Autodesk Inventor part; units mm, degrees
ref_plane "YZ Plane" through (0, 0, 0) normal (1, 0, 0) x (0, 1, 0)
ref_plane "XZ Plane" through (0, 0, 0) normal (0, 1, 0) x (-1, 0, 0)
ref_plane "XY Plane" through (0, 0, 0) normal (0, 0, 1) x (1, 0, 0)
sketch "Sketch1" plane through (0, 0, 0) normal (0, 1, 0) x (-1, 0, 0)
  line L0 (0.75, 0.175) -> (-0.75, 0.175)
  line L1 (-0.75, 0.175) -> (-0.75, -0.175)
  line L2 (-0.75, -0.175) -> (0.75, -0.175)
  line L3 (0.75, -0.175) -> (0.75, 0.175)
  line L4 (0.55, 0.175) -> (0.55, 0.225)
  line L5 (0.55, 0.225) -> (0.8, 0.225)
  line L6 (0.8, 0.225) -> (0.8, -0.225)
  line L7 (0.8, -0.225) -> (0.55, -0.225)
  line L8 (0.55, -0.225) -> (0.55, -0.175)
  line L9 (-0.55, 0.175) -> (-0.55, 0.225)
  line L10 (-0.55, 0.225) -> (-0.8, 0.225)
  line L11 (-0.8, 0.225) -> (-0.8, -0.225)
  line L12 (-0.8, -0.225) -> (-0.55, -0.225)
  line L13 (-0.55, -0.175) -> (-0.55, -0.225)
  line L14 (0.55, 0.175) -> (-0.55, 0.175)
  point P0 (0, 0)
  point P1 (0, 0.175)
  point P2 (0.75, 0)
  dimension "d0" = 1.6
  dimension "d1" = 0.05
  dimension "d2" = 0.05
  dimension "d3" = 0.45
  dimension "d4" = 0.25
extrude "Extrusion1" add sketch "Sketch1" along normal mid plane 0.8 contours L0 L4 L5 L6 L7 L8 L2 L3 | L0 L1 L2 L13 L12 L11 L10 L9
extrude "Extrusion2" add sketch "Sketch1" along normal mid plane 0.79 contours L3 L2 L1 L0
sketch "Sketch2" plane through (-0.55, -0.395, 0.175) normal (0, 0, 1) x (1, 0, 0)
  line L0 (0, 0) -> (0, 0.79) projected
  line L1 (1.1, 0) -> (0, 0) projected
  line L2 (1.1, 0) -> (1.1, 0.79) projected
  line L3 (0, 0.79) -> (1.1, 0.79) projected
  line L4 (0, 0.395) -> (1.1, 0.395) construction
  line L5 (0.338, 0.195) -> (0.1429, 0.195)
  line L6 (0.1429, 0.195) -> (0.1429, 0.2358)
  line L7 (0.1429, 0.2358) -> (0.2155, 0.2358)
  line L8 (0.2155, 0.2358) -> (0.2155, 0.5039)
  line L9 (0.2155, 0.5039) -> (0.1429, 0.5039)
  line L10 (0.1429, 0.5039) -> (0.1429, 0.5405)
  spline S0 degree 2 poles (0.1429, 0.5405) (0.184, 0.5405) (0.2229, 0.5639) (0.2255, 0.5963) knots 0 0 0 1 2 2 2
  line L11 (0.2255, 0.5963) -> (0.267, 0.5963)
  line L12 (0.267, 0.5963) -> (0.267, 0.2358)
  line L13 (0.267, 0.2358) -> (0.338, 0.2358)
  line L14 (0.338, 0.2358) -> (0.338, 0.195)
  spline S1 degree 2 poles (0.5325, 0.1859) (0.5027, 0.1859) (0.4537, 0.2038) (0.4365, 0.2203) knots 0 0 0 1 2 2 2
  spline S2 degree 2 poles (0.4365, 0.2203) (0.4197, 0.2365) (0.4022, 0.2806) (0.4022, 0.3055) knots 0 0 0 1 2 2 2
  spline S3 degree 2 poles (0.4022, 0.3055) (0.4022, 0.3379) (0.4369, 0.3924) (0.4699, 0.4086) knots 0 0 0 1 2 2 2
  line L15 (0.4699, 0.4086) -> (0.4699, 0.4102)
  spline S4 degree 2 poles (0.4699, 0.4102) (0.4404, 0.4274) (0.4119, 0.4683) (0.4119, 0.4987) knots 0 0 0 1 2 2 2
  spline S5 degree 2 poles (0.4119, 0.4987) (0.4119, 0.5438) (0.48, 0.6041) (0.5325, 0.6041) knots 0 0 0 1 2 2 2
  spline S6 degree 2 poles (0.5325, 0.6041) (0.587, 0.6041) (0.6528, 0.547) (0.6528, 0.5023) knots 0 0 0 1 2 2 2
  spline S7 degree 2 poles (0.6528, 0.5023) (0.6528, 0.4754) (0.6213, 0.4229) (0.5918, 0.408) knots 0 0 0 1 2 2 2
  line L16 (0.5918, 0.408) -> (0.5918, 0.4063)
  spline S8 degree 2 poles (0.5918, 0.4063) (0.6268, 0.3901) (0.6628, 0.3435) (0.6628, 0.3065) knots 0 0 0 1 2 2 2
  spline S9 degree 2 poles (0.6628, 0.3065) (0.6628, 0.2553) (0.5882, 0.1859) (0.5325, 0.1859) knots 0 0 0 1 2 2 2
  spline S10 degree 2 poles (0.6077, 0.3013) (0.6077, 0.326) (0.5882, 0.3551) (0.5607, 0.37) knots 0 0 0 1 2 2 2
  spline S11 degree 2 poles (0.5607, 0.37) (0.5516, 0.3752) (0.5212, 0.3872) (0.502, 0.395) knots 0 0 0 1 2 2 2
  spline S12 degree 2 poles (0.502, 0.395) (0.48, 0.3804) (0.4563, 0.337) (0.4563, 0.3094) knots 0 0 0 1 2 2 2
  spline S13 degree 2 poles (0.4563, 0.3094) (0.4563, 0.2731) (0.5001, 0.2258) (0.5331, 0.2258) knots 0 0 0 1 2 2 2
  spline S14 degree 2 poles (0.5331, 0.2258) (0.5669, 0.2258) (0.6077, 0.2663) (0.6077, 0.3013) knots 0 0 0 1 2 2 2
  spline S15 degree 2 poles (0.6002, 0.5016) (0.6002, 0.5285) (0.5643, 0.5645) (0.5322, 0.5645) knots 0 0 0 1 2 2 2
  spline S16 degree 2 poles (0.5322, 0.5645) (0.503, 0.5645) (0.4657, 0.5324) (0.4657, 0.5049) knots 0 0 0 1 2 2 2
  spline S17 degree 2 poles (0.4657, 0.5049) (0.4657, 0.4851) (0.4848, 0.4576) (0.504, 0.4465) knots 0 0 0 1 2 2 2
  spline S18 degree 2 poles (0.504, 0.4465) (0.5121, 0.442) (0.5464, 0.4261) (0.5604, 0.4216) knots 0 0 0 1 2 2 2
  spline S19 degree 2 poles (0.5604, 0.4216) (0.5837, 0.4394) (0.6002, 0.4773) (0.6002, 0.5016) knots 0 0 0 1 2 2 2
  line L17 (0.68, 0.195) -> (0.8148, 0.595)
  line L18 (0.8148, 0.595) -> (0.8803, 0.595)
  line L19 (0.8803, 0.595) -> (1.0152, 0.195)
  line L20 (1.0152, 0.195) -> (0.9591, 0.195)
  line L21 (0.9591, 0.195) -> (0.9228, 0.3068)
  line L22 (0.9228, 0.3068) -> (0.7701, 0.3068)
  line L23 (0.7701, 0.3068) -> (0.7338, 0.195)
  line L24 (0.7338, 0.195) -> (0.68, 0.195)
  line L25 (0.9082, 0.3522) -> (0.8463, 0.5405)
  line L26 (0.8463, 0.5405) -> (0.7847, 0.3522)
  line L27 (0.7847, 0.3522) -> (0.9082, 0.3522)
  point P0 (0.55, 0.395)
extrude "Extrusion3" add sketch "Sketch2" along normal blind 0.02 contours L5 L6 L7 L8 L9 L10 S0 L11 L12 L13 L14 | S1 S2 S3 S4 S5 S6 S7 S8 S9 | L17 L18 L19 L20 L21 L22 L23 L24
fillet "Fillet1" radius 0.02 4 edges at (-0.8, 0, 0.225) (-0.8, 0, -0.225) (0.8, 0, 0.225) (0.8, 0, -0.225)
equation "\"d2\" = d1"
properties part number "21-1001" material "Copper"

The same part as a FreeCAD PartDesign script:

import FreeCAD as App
import Part
import Sketcher
from FreeCAD import Vector
Q = App.Units.Quantity


def edges_at(feature, points):
    """Names of the edges that pass closest to the given points."""
    edges = feature.Shape.Edges
    near = lambda p: min(range(len(edges)), key=lambda i: edges[i].distToShape(Part.Vertex(*p))[0])
    return sorted({f"Edge{near(p) + 1}" for p in points})

doc = App.newDocument("Part")
body = doc.addObject("PartDesign::Body", "Body")
body.AllowCompound = True

sketch1 = doc.addObject("Sketcher::SketchObject", "Sketch")
body.addObject(sketch1)
sketch1.AttachmentSupport = (doc.XZ_Plane, [""])
sketch1.MapMode = "FlatFace"
sketch1.addGeometry([
    Part.LineSegment(Vector(-0.55, 0.17, 0), Vector(-0.75, 0.17, 0)),
    Part.LineSegment(Vector(-0.75, 0.17, 0), Vector(-0.75, -0.17, 0)),
    Part.LineSegment(Vector(-0.75, -0.17, 0), Vector(-0.55, -0.17, 0)),
    Part.LineSegment(Vector(-0.55, -0.17, 0), Vector(-0.55, -0.23, 0)),
    Part.LineSegment(Vector(-0.55, -0.23, 0), Vector(-0.8, -0.23, 0)),
    Part.LineSegment(Vector(-0.8, -0.23, 0), Vector(-0.8, 0.23, 0)),
    Part.LineSegment(Vector(-0.8, 0.23, 0), Vector(-0.55, 0.23, 0)),
    Part.LineSegment(Vector(-0.55, 0.23, 0), Vector(-0.55, 0.17, 0)),
    Part.LineSegment(Vector(0.75, 0.17, 0), Vector(0.55, 0.17, 0)),
    Part.LineSegment(Vector(0.55, 0.17, 0), Vector(0.55, 0.23, 0)),
    Part.LineSegment(Vector(0.55, 0.23, 0), Vector(0.8, 0.23, 0)),
    Part.LineSegment(Vector(0.8, 0.23, 0), Vector(0.8, -0.23, 0)),
    Part.LineSegment(Vector(0.8, -0.23, 0), Vector(0.55, -0.23, 0)),
    Part.LineSegment(Vector(0.55, -0.23, 0), Vector(0.55, -0.17, 0)),
    Part.LineSegment(Vector(0.55, -0.17, 0), Vector(0.75, -0.17, 0)),
    Part.LineSegment(Vector(0.75, -0.17, 0), Vector(0.75, 0.17, 0)),
], False)
sketch1.addConstraint([
    Sketcher.Constraint("Coincident", 0, 2, 1, 1),
    Sketcher.Constraint("Coincident", 1, 2, 2, 1),
    Sketcher.Constraint("Coincident", 2, 2, 3, 1),
    Sketcher.Constraint("Coincident", 3, 2, 4, 1),
    Sketcher.Constraint("Coincident", 4, 2, 5, 1),
    Sketcher.Constraint("Coincident", 5, 2, 6, 1),
    Sketcher.Constraint("Coincident", 6, 2, 7, 1),
    Sketcher.Constraint("Coincident", 7, 2, 0, 1),
    Sketcher.Constraint("Coincident", 8, 2, 9, 1),
    Sketcher.Constraint("Coincident", 9, 2, 10, 1),
    Sketcher.Constraint("Coincident", 10, 2, 11, 1),
    Sketcher.Constraint("Coincident", 11, 2, 12, 1),
    Sketcher.Constraint("Coincident", 12, 2, 13, 1),
    Sketcher.Constraint("Coincident", 13, 2, 14, 1),
    Sketcher.Constraint("Coincident", 14, 2, 15, 1),
    Sketcher.Constraint("Coincident", 15, 2, 8, 1),
    Sketcher.Constraint("Horizontal", 0),
    Sketcher.Constraint("Vertical", 1),
    Sketcher.Constraint("Horizontal", 2),
    Sketcher.Constraint("Vertical", 3),
    Sketcher.Constraint("Horizontal", 4),
    Sketcher.Constraint("Vertical", 5),
    Sketcher.Constraint("Horizontal", 6),
    Sketcher.Constraint("Vertical", 7),
    Sketcher.Constraint("Horizontal", 8),
    Sketcher.Constraint("Vertical", 9),
    Sketcher.Constraint("Horizontal", 10),
    Sketcher.Constraint("Vertical", 11),
    Sketcher.Constraint("Horizontal", 12),
    Sketcher.Constraint("Vertical", 13),
    Sketcher.Constraint("Horizontal", 14),
    Sketcher.Constraint("Vertical", 15),
    Sketcher.Constraint("Symmetric", 2, 2, 8, 2, -1, 1),
    Sketcher.Constraint("Symmetric", 4, 2, 10, 2, -1, 1),
    Sketcher.Constraint("Symmetric", 6, 2, 12, 2, -1, 1),
    Sketcher.Constraint("Symmetric", 0, 2, 14, 2, -1, 1),
    Sketcher.Constraint("Symmetric", 7, 2, 8, 2, -2),
    Sketcher.Constraint("Horizontal", 6, 2, 9, 2),
    Sketcher.Constraint("DistanceX", 4, 2, 4, 1, Q("0.25 mm")),
    Sketcher.Constraint("DistanceY", 3, 2, 3, 1, Q("0.05 mm")),
    Sketcher.Constraint("DistanceY", 5, 1, 5, 2, Q("0.45 mm")),
    Sketcher.Constraint("DistanceX", 4, 2, 1, 2, Q("0.05 mm")),
    Sketcher.Constraint("DistanceX", 4, 2, -1, 1, Q("0.8 mm")),
])
pad1 = doc.addObject("PartDesign::Pad", "Pad")
body.addObject(pad1)
pad1.Profile = sketch1
pad1.Length = 0.8
pad1.Midplane = True

sketch2 = doc.addObject("Sketcher::SketchObject", "Sketch001")
body.addObject(sketch2)
sketch2.AttachmentSupport = (doc.XZ_Plane, [""])
sketch2.MapMode = "FlatFace"
sketch2.addGeometry([
    Part.LineSegment(Vector(-0.75, -0.17, 0), Vector(-0.75, 0.17, 0)),
    Part.LineSegment(Vector(-0.75, 0.17, 0), Vector(0.75, 0.17, 0)),
    Part.LineSegment(Vector(0.75, 0.17, 0), Vector(0.75, -0.17, 0)),
    Part.LineSegment(Vector(0.75, -0.17, 0), Vector(-0.75, -0.17, 0)),
], False)
sketch2.addConstraint([
    Sketcher.Constraint("Coincident", 0, 2, 1, 1),
    Sketcher.Constraint("Coincident", 1, 2, 2, 1),
    Sketcher.Constraint("Coincident", 2, 2, 3, 1),
    Sketcher.Constraint("Coincident", 3, 2, 0, 1),
    Sketcher.Constraint("Vertical", 0),
    Sketcher.Constraint("Horizontal", 1),
    Sketcher.Constraint("Vertical", 2),
    Sketcher.Constraint("Horizontal", 3),
    Sketcher.Constraint("Symmetric", 0, 2, 2, 2, -1, 1),
    Sketcher.Constraint("DistanceX", 1, 1, 1, 2, Q("1.5 mm")),
    Sketcher.Constraint("DistanceY", 0, 1, 0, 2, Q("0.35 mm")),
])
pad2 = doc.addObject("PartDesign::Pad", "Pad001")
body.addObject(pad2)
pad2.Profile = sketch2
pad2.Length = 0.79
pad2.Midplane = True

sketch3 = doc.addObject("Sketcher::SketchObject", "Sketch002")
body.addObject(sketch3)
sketch3.AttachmentSupport = (doc.XY_Plane, [""])
sketch3.MapMode = "FlatFace"
sketch3.AttachmentOffset = App.Placement(Vector(0, 0, 0.175), App.Rotation())
sketch3.addGeometry([
    Part.LineSegment(Vector(-0.4071, -0.2, 0), Vector(-0.212, -0.2, 0)),
    Part.LineSegment(Vector(-0.212, -0.2, 0), Vector(-0.212, -0.1592, 0)),
    Part.LineSegment(Vector(-0.212, -0.1592, 0), Vector(-0.283, -0.1592, 0)),
    Part.LineSegment(Vector(-0.283, -0.1592, 0), Vector(-0.283, 0.2013, 0)),
    Part.LineSegment(Vector(-0.283, 0.2013, 0), Vector(-0.3245, 0.2013, 0)),
    Part.BSplineCurve([Vector(-0.4071, 0.1455, 0), Vector(-0.366, 0.1455, 0), Vector(-0.3271, 0.1689, 0), Vector(-0.3245, 0.2013, 0)], [3, 1, 3], [0, 1, 2], False, 2, [1, 1, 1, 1], False),
    Part.LineSegment(Vector(-0.4071, 0.1455, 0), Vector(-0.4071, 0.1089, 0)),
    Part.LineSegment(Vector(-0.4071, 0.1089, 0), Vector(-0.3345, 0.1089, 0)),
    Part.LineSegment(Vector(-0.3345, 0.1089, 0), Vector(-0.3345, -0.1592, 0)),
    Part.LineSegment(Vector(-0.3345, -0.1592, 0), Vector(-0.4071, -0.1592, 0)),
    Part.LineSegment(Vector(-0.4071, -0.1592, 0), Vector(-0.4071, -0.2, 0)),
    Part.BSplineCurve([Vector(-0.0175, -0.2091, 0), Vector(-0.0473, -0.2091, 0), Vector(-0.0963, -0.1912, 0), Vector(-0.1135, -0.1747, 0)], [3, 1, 3], [0, 1, 2], False, 2, [1, 1, 1, 1], False),
    Part.BSplineCurve([Vector(0.1128, -0.0885, 0), Vector(0.1128, -0.1397, 0), Vector(0.0382, -0.2091, 0), Vector(-0.0175, -0.2091, 0)], [3, 1, 3], [0, 1, 2], False, 2, [1, 1, 1, 1], False),
    Part.BSplineCurve([Vector(0.0418, 0.013, 0), Vector(0.0768, -0.0049, 0), Vector(0.1128, -0.0515, 0), Vector(0.1128, -0.0885, 0)], [3, 1, 3], [0, 1, 2], False, 2, [1, 1, 1, 1], False),
    Part.BSplineCurve([Vector(0.1028, 0.1073, 0), Vector(0.1028, 0.0804, 0), Vector(0.0713, 0.0279, 0), Vector(0.0418, 0.013, 0)], [3, 1, 3], [0, 1, 2], False, 2, [1, 1, 1, 1], False),
    Part.BSplineCurve([Vector(-0.0175, 0.2091, 0), Vector(0.037, 0.2091, 0), Vector(0.1028, 0.152, 0), Vector(0.1028, 0.1073, 0)], [3, 1, 3], [0, 1, 2], False, 2, [1, 1, 1, 1], False),
    Part.BSplineCurve([Vector(-0.1381, 0.1037, 0), Vector(-0.1381, 0.1488, 0), Vector(-0.07, 0.2091, 0), Vector(-0.0175, 0.2091, 0)], [3, 1, 3], [0, 1, 2], False, 2, [1, 1, 1, 1], False),
    Part.BSplineCurve([Vector(-0.0801, 0.0136, 0), Vector(-0.1096, 0.0324, 0), Vector(-0.1381, 0.0733, 0), Vector(-0.1381, 0.1037, 0)], [3, 1, 3], [0, 1, 2], False, 2, [1, 1, 1, 1], False),
    Part.BSplineCurve([Vector(-0.1478, -0.0895, 0), Vector(-0.1478, -0.0571, 0), Vector(-0.1131, -0.0026, 0), Vector(-0.0801, 0.0136, 0)], [3, 1, 3], [0, 1, 2], False, 2, [1, 1, 1, 1], False),
    Part.BSplineCurve([Vector(-0.1135, -0.1747, 0), Vector(-0.1303, -0.1585, 0), Vector(-0.1478, -0.1144, 0), Vector(-0.1478, -0.0895, 0)], [3, 1, 3], [0, 1, 2], False, 2, [1, 1, 1, 1], False),
    Part.BSplineCurve([Vector(0.0577, -0.0937, 0), Vector(0.0577, -0.069, 0), Vector(0.0382, -0.0399, 0), Vector(0.0107, -0.025, 0)], [3, 1, 3], [0, 1, 2], False, 2, [1, 1, 1, 1], False),
    Part.BSplineCurve([Vector(-0.0169, -0.1692, 0), Vector(0.0169, -0.1692, 0), Vector(0.0577, -0.1287, 0), Vector(0.0577, -0.0937, 0)], [3, 1, 3], [0, 1, 2], False, 2, [1, 1, 1, 1], False),
    Part.BSplineCurve([Vector(-0.0937, -0.0856, 0), Vector(-0.0937, -0.1219, 0), Vector(-0.0499, -0.1692, 0), Vector(-0.0169, -0.1692, 0)], [3, 1, 3], [0, 1, 2], False, 2, [1, 1, 1, 1], False),
    Part.BSplineCurve([Vector(-0.048, 0, 0), Vector(-0.07, -0.0146, 0), Vector(-0.0937, -0.058, 0), Vector(-0.0937, -0.0856, 0)], [3, 1, 3], [0, 1, 2], False, 2, [1, 1, 1, 1], False),
    Part.BSplineCurve([Vector(0.0107, -0.025, 0), Vector(0.0016, -0.0198, 0), Vector(-0.0288, -0.0078, 0), Vector(-0.048, 0, 0)], [3, 1, 3], [0, 1, 2], False, 2, [1, 1, 1, 1], False),
    Part.BSplineCurve([Vector(0.0502, 0.1066, 0), Vector(0.0502, 0.1335, 0), Vector(0.0143, 0.1695, 0), Vector(-0.0178, 0.1695, 0)], [3, 1, 3], [0, 1, 2], False, 2, [1, 1, 1, 1], False),
    Part.BSplineCurve([Vector(0.0104, 0.0266, 0), Vector(0.0337, 0.0444, 0), Vector(0.0502, 0.0823, 0), Vector(0.0502, 0.1066, 0)], [3, 1, 3], [0, 1, 2], False, 2, [1, 1, 1, 1], False),
    Part.BSplineCurve([Vector(-0.046, 0.0515, 0), Vector(-0.0379, 0.047, 0), Vector(-0.0036, 0.0311, 0), Vector(0.0104, 0.0266, 0)], [3, 1, 3], [0, 1, 2], False, 2, [1, 1, 1, 1], False),
    Part.BSplineCurve([Vector(-0.0843, 0.1099, 0), Vector(-0.0843, 0.0901, 0), Vector(-0.0652, 0.0626, 0), Vector(-0.046, 0.0515, 0)], [3, 1, 3], [0, 1, 2], False, 2, [1, 1, 1, 1], False),
    Part.BSplineCurve([Vector(-0.0178, 0.1695, 0), Vector(-0.047, 0.1695, 0), Vector(-0.0843, 0.1374, 0), Vector(-0.0843, 0.1099, 0)], [3, 1, 3], [0, 1, 2], False, 2, [1, 1, 1, 1], False),
    Part.LineSegment(Vector(0.2648, 0.2, 0), Vector(0.13, -0.2, 0)),
    Part.LineSegment(Vector(0.13, -0.2, 0), Vector(0.1838, -0.2, 0)),
    Part.LineSegment(Vector(0.1838, -0.2, 0), Vector(0.2201, -0.0882, 0)),
    Part.LineSegment(Vector(0.2201, -0.0882, 0), Vector(0.3728, -0.0882, 0)),
    Part.LineSegment(Vector(0.3728, -0.0882, 0), Vector(0.4091, -0.2, 0)),
    Part.LineSegment(Vector(0.4091, -0.2, 0), Vector(0.4652, -0.2, 0)),
    Part.LineSegment(Vector(0.4652, -0.2, 0), Vector(0.3303, 0.2, 0)),
    Part.LineSegment(Vector(0.3303, 0.2, 0), Vector(0.2648, 0.2, 0)),
    Part.LineSegment(Vector(0.2963, 0.1455, 0), Vector(0.3582, -0.0428, 0)),
    Part.LineSegment(Vector(0.3582, -0.0428, 0), Vector(0.2347, -0.0428, 0)),
    Part.LineSegment(Vector(0.2347, -0.0428, 0), Vector(0.2963, 0.1455, 0)),
], False)
sketch3.addConstraint([
    Sketcher.Constraint("Block", 5),
    Sketcher.Constraint("Block", 11),
    Sketcher.Constraint("Block", 12),
    Sketcher.Constraint("Block", 13),
    Sketcher.Constraint("Block", 14),
    Sketcher.Constraint("Block", 15),
    Sketcher.Constraint("Block", 16),
    Sketcher.Constraint("Block", 17),
    Sketcher.Constraint("Block", 18),
    Sketcher.Constraint("Block", 19),
    Sketcher.Constraint("Block", 20),
    Sketcher.Constraint("Block", 21),
    Sketcher.Constraint("Block", 22),
    Sketcher.Constraint("Block", 23),
    Sketcher.Constraint("Block", 24),
    Sketcher.Constraint("Block", 25),
    Sketcher.Constraint("Block", 26),
    Sketcher.Constraint("Block", 27),
    Sketcher.Constraint("Block", 28),
    Sketcher.Constraint("Block", 29),
    Sketcher.Constraint("Coincident", 0, 2, 1, 1),
    Sketcher.Constraint("Coincident", 1, 2, 2, 1),
    Sketcher.Constraint("Coincident", 2, 2, 3, 1),
    Sketcher.Constraint("Coincident", 3, 2, 4, 1),
    Sketcher.Constraint("Coincident", 4, 2, 5, 2),
    Sketcher.Constraint("Coincident", 5, 1, 6, 1),
    Sketcher.Constraint("Coincident", 6, 2, 7, 1),
    Sketcher.Constraint("Coincident", 7, 2, 8, 1),
    Sketcher.Constraint("Coincident", 8, 2, 9, 1),
    Sketcher.Constraint("Coincident", 9, 2, 10, 1),
    Sketcher.Constraint("Coincident", 10, 2, 0, 1),
    Sketcher.Constraint("Coincident", 30, 2, 31, 1),
    Sketcher.Constraint("Coincident", 31, 2, 32, 1),
    Sketcher.Constraint("Coincident", 32, 2, 33, 1),
    Sketcher.Constraint("Coincident", 33, 2, 34, 1),
    Sketcher.Constraint("Coincident", 34, 2, 35, 1),
    Sketcher.Constraint("Coincident", 35, 2, 36, 1),
    Sketcher.Constraint("Coincident", 36, 2, 37, 1),
    Sketcher.Constraint("Coincident", 37, 2, 30, 1),
    Sketcher.Constraint("Coincident", 38, 2, 39, 1),
    Sketcher.Constraint("Coincident", 39, 2, 40, 1),
    Sketcher.Constraint("Coincident", 40, 2, 38, 1),
    Sketcher.Constraint("Horizontal", 0),
    Sketcher.Constraint("Vertical", 1),
    Sketcher.Constraint("Horizontal", 2),
    Sketcher.Constraint("Vertical", 3),
    Sketcher.Constraint("Horizontal", 4),
    Sketcher.Constraint("Vertical", 6),
    Sketcher.Constraint("Horizontal", 7),
    Sketcher.Constraint("Vertical", 8),
    Sketcher.Constraint("Horizontal", 9),
    Sketcher.Constraint("Vertical", 10),
    Sketcher.Constraint("Horizontal", 31),
    Sketcher.Constraint("Horizontal", 33),
    Sketcher.Constraint("Horizontal", 35),
    Sketcher.Constraint("Horizontal", 37),
    Sketcher.Constraint("Horizontal", 39),
    Sketcher.Constraint("Horizontal", 2, 2, 8, 2),
    Sketcher.Constraint("Horizontal", 10, 2, 30, 2),
    Sketcher.Constraint("Horizontal", 31, 2, 34, 2),
    Sketcher.Constraint("Vertical", 6, 2, 9, 2),
    Sketcher.Constraint("Equal", 32, 34),
    Sketcher.Constraint("Equal", 30, 36),
    Sketcher.Constraint("Equal", 38, 40),
    Sketcher.Constraint("DistanceY", 0, 2, -1, 1, Q("0.2 mm")),
    Sketcher.Constraint("DistanceY", -1, 1, 36, 2, Q("0.2 mm")),
    Sketcher.Constraint("DistanceX", 0, 1, 0, 2, Q("0.195 mm")),
    Sketcher.Constraint("DistanceX", 2, 2, 2, 1, Q("0.071 mm")),
    Sketcher.Constraint("DistanceX", 35, 1, 35, 2, Q("0.056 mm")),
    Sketcher.Constraint("DistanceY", 8, 2, 8, 1, Q("0.268 mm")),
    Sketcher.Constraint("DistanceX", -1, 1, 30, 2, Q("0.13 mm")),
    Sketcher.Constraint("DistanceX", -1, 1, 32, 2, Q("0.22 mm")),
    Sketcher.Constraint("DistanceX", 7, 2, 4, 2, Q("0.01 mm")),
    Sketcher.Constraint("Distance", 30, Q("0.422 mm")),
    Sketcher.Constraint("Distance", 40, Q("0.198 mm")),
    Sketcher.Constraint("DistanceX", 31, 1, 31, 2, Q("0.0538 mm")),
    Sketcher.Constraint("DistanceX", 33, 1, 33, 2, Q("0.1527 mm")),
    Sketcher.Constraint("DistanceX", 39, 2, 39, 1, Q("0.1235 mm")),
    Sketcher.Constraint("DistanceY", 1, 1, 1, 2, Q("0.0408 mm")),
    Sketcher.Constraint("DistanceY", 1, 2, 32, 2, Q("0.071 mm")),
    Sketcher.Constraint("DistanceX", 32, 2, 38, 2, Q("0.138 mm")),
    Sketcher.Constraint("DistanceY", 38, 2, -1, 1, Q("0.0428 mm")),
])
pad3 = doc.addObject("PartDesign::Pad", "Pad002")
body.addObject(pad3)
pad3.Profile = sketch3
pad3.Length = 0.02
doc.recompute()

fillet = doc.addObject("PartDesign::Fillet", "Fillet")
body.addObject(fillet)
fillet.Base = (pad3, edges_at(pad3, [
    (-0.8, 0, 0.225),
    (-0.8, 0, -0.225),
    (0.8, 0, 0.225),
    (0.8, 0, -0.225),
]))
fillet.Radius = 0.02

doc.recompute()
